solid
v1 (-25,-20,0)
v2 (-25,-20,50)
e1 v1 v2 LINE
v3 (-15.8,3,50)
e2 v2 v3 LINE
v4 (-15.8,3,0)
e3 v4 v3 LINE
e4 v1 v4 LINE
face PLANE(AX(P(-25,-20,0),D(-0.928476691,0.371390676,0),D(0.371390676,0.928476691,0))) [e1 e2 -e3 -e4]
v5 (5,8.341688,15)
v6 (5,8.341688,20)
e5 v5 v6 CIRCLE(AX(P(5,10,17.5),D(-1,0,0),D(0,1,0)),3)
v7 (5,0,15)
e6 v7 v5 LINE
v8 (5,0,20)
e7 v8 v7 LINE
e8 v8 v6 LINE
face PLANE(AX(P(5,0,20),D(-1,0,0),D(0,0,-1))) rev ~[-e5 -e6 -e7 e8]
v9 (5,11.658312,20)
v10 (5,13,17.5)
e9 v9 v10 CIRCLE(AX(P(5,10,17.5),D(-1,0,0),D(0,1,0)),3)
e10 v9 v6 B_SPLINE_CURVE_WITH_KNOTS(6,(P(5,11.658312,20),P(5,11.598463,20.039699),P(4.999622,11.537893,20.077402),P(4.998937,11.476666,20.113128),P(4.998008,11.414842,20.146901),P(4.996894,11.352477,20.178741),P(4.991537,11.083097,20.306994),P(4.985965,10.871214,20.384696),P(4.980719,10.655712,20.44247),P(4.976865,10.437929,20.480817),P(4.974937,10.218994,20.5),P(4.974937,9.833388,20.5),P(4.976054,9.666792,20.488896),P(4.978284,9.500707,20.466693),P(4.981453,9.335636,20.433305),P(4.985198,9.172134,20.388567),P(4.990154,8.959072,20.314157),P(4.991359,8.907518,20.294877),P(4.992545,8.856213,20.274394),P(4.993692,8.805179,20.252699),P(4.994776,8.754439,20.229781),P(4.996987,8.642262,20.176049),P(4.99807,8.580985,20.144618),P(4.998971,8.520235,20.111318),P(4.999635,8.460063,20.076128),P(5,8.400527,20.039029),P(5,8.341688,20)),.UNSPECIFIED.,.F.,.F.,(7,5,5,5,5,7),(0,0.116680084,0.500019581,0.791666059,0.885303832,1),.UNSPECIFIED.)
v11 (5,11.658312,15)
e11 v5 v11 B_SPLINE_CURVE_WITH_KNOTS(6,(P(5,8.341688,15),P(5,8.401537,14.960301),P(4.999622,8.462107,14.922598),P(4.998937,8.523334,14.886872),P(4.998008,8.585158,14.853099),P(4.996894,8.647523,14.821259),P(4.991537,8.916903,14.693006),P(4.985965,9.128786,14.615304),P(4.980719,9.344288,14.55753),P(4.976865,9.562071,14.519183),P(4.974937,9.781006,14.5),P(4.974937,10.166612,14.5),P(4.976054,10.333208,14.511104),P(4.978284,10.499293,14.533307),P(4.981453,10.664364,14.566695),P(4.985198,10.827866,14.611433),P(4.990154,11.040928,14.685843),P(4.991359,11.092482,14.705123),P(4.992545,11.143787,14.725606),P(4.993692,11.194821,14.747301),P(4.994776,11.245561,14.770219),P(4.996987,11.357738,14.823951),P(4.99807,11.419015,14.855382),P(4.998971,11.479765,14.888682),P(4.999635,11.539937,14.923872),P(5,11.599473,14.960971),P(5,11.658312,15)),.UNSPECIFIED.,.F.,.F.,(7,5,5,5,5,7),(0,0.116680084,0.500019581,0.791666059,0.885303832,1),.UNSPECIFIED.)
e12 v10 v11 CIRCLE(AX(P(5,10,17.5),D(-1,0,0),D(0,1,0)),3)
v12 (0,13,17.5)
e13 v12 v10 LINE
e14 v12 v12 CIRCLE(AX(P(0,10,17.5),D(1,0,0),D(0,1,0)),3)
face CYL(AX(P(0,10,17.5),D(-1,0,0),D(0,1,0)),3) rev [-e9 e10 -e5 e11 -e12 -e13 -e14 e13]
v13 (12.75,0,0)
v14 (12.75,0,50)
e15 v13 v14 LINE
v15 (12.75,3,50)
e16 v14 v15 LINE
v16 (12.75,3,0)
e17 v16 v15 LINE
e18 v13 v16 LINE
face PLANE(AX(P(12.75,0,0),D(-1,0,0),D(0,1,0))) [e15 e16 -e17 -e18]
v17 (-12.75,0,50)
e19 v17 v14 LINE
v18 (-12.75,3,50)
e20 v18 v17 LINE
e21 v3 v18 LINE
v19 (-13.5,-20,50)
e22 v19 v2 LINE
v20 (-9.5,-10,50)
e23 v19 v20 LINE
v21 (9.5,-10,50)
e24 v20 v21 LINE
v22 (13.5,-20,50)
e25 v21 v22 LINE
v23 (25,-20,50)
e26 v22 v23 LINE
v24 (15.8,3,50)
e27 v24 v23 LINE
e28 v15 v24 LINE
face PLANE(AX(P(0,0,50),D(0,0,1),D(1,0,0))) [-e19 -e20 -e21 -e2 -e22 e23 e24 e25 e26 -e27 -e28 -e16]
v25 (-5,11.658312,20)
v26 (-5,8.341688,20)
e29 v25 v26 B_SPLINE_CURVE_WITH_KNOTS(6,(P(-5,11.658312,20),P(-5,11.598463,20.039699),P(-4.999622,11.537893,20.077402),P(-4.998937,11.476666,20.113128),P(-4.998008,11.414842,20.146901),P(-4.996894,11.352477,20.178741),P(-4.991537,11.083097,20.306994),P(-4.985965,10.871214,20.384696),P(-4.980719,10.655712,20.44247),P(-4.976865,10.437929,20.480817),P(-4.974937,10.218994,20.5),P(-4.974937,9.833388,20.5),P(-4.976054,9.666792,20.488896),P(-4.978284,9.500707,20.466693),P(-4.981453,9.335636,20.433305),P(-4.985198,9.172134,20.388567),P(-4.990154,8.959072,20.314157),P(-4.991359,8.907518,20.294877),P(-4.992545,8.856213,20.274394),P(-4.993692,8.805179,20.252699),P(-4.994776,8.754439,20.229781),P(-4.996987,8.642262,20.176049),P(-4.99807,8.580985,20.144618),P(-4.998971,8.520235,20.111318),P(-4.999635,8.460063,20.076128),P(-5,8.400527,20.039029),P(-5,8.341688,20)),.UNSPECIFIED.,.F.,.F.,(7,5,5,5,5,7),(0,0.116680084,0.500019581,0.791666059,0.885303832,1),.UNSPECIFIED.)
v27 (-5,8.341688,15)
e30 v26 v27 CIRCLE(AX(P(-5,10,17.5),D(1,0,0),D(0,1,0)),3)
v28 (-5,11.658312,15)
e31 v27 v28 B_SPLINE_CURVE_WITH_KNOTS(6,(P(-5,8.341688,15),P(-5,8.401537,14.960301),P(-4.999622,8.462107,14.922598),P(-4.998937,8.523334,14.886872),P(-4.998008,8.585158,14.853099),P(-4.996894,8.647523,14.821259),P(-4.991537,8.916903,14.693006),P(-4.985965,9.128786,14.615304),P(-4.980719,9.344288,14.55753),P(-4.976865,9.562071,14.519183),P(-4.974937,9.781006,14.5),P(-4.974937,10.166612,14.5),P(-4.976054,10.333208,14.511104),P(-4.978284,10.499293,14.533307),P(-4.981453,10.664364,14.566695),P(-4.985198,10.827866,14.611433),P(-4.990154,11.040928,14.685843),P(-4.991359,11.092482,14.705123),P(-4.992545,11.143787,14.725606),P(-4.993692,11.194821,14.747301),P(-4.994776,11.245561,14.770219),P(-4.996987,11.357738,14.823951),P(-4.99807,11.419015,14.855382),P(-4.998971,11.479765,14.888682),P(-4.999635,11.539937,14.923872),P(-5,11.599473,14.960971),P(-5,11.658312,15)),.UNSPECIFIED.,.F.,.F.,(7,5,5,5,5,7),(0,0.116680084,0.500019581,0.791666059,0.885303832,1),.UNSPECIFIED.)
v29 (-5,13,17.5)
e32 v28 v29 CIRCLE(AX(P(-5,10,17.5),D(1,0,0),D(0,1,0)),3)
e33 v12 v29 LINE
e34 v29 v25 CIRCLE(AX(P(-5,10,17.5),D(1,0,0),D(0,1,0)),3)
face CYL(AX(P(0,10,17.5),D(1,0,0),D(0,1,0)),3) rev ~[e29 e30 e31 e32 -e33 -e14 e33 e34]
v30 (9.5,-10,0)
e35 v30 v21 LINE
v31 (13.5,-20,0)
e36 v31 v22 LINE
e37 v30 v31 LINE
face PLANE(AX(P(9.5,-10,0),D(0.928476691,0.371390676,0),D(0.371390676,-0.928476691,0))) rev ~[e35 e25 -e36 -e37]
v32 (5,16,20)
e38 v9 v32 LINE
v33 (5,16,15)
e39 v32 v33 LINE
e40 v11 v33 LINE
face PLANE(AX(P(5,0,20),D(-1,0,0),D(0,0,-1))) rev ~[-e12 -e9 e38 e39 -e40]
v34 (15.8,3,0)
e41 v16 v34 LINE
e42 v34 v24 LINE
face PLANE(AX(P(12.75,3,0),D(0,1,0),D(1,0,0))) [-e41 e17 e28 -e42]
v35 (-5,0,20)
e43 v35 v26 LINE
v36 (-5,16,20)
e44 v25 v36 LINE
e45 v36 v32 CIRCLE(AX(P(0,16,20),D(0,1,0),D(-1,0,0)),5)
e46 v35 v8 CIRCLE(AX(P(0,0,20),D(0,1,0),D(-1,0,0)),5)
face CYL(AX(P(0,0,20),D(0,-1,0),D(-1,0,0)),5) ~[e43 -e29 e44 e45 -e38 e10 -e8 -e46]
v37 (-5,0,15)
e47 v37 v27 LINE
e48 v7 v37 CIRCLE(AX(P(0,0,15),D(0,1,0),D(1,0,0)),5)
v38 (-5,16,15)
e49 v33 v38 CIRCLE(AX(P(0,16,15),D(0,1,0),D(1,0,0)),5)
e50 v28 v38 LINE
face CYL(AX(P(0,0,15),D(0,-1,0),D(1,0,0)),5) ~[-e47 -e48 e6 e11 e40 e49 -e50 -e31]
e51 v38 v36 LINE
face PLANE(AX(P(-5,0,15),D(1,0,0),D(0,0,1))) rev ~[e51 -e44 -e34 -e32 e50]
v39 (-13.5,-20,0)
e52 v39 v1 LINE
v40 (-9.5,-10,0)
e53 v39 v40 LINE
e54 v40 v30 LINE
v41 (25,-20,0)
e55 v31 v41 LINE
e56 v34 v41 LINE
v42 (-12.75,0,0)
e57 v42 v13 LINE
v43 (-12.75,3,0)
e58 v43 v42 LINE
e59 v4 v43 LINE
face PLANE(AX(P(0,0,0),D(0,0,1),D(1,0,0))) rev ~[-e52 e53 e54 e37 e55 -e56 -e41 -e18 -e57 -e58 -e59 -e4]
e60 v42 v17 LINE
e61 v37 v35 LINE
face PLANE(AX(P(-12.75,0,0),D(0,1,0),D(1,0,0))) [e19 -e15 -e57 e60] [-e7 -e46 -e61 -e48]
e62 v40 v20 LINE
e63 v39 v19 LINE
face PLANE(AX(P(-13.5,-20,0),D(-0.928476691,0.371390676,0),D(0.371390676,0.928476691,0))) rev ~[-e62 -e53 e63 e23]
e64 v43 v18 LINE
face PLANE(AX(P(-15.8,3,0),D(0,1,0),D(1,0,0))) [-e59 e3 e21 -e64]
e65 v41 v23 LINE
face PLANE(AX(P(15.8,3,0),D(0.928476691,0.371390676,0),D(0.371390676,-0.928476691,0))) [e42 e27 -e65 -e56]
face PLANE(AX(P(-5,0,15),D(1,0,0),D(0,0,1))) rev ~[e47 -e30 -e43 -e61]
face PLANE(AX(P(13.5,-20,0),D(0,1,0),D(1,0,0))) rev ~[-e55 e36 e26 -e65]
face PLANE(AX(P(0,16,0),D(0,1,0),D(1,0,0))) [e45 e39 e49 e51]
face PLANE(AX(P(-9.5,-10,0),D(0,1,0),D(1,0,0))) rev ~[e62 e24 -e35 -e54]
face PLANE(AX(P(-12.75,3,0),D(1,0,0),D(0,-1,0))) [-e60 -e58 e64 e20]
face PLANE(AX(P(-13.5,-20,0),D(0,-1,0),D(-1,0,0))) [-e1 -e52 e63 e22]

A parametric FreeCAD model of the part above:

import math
import FreeCAD as App
import Part
import Sketcher

doc = App.newDocument("Part")
params = doc.addObject("Spreadsheet::Sheet", "Params")
for row, (alias, value) in enumerate([
    ("sketch1_width", "19 mm"),
    ("sketch1_height", "3 mm"),
    ("sketch1_width2", "25.5 mm"),
    ("sketch1_width3", "11.5 mm"),
    ("pad1_length", "50 mm"),
    ("sketch2_radius", "5 mm"),
    ("sketch2_height", "5 mm"),
    ("pad2_length", "16 mm"),
    ("sketch3_diameter", "6 mm"),
], start=1):
    params.set(f"A{row}", alias)
    params.set(f"B{row}", "=" + value)
    params.setAlias(f"B{row}", alias)

body = doc.addObject("PartDesign::Body", "Body")

# Sketch on XY plane
sketch1 = body.newObject("Sketcher::SketchObject", "Sketch")
sketch1.AttachmentSupport = (doc.getObject("XY_Plane"), [""])
sketch1.MapMode = "FlatFace"
sketch1.addGeometry([
    Part.LineSegment(App.Vector(25, -20, 0), App.Vector(15.8, 3, 0)),  # 0
    Part.LineSegment(App.Vector(15.8, 3, 0), App.Vector(12.8, 3, 0)),  # 1
    Part.LineSegment(App.Vector(12.8, 3, 0), App.Vector(12.8, 0, 0)),  # 2
    Part.LineSegment(App.Vector(12.8, 0, 0), App.Vector(-12.8, 0, 0)),  # 3
    Part.LineSegment(App.Vector(-12.8, 0, 0), App.Vector(-12.8, 3, 0)),  # 4
    Part.LineSegment(App.Vector(-12.8, 3, 0), App.Vector(-15.8, 3, 0)),  # 5
    Part.LineSegment(App.Vector(-15.8, 3, 0), App.Vector(-25, -20, 0)),  # 6
    Part.LineSegment(App.Vector(-25, -20, 0), App.Vector(-13.5, -20, 0)),  # 7
    Part.LineSegment(App.Vector(-13.5, -20, 0), App.Vector(-9.5, -10, 0)),  # 8
    Part.LineSegment(App.Vector(-9.5, -10, 0), App.Vector(9.5, -10, 0)),  # 9
    Part.LineSegment(App.Vector(9.5, -10, 0), App.Vector(13.5, -20, 0)),  # 10
    Part.LineSegment(App.Vector(13.5, -20, 0), App.Vector(25, -20, 0)),  # 11
], False)
sketch1.addConstraint([
    Sketcher.Constraint("Coincident", 0, 2, 1, 1),
    Sketcher.Constraint("Coincident", 1, 2, 2, 1),
    Sketcher.Constraint("Coincident", 2, 2, 3, 1),
    Sketcher.Constraint("Coincident", 3, 2, 4, 1),
    Sketcher.Constraint("Coincident", 4, 2, 5, 1),
    Sketcher.Constraint("Coincident", 5, 2, 6, 1),
    Sketcher.Constraint("Coincident", 6, 2, 7, 1),
    Sketcher.Constraint("Coincident", 7, 2, 8, 1),
    Sketcher.Constraint("Coincident", 8, 2, 9, 1),
    Sketcher.Constraint("Coincident", 9, 2, 10, 1),
    Sketcher.Constraint("Coincident", 10, 2, 11, 1),
    Sketcher.Constraint("Coincident", 11, 2, 0, 1),
    Sketcher.Constraint("Horizontal", 1),
    Sketcher.Constraint("Vertical", 2),
    Sketcher.Constraint("Horizontal", 3),
    Sketcher.Constraint("Vertical", 4),
    Sketcher.Constraint("Horizontal", 5),
    Sketcher.Constraint("Horizontal", 7),
    Sketcher.Constraint("Horizontal", 9),
    Sketcher.Constraint("Horizontal", 11),
    Sketcher.Constraint("Symmetric", 2, 2, 3, 2, -1, 1),
    Sketcher.Constraint("Symmetric", 0, 2, 5, 2, -2),
    Sketcher.Constraint("Symmetric", 7, 2, 10, 2, -2),
    Sketcher.Constraint("Parallel", 6, 8),
    Sketcher.Constraint("Parallel", 0, 10),
    Sketcher.Constraint("Equal", 7, 11),
    Sketcher.Constraint("DistanceX", 9, 1, 9, 2, 19.0),
    Sketcher.Constraint("DistanceY", 2, 2, 2, 1, 3.0),
    Sketcher.Constraint("DistanceX", 3, 2, 3, 1, 25.5),
    Sketcher.Constraint("DistanceX", 7, 1, 7, 2, 11.5),
    Sketcher.Constraint("DistanceX", 6, 2, -1, 1, 25.0),
    Sketcher.Constraint("DistanceY", 6, 2, -1, 1, 20.0),
    Sketcher.Constraint("DistanceY", 8, 2, -1, 1, 10.0),
])
sketch1.setExpression("Constraints[26]", "Params.sketch1_width")
sketch1.setExpression("Constraints[27]", "Params.sketch1_height")
sketch1.setExpression("Constraints[28]", "Params.sketch1_width2")
sketch1.setExpression("Constraints[29]", "Params.sketch1_width3")
pad1 = body.newObject("PartDesign::Pad", "Pad")
pad1.Profile = sketch1
pad1.setExpression("Length", "Params.pad1_length")

# Sketch on XZ plane
sketch2 = body.newObject("Sketcher::SketchObject", "Sketch001")
sketch2.AttachmentSupport = (doc.getObject("XZ_Plane"), [""])
sketch2.MapMode = "FlatFace"
sketch2.addGeometry([
    Part.ArcOfCircle(Part.Circle(App.Vector(0, 20, 0), App.Vector(0, 0, 1), 5), math.radians(0), math.radians(180)),
    Part.LineSegment(App.Vector(5, 20, 0), App.Vector(5, 15, 0)),
    Part.ArcOfCircle(Part.Circle(App.Vector(0, 15, 0), App.Vector(0, 0, 1), 5), math.radians(180), math.radians(360)),
    Part.LineSegment(App.Vector(-5, 15, 0), App.Vector(-5, 20, 0)),
], False)
sketch2.addConstraint([
    Sketcher.Constraint("Tangent", 0, 1, 1, 1),
    Sketcher.Constraint("Tangent", 1, 2, 2, 2),
    Sketcher.Constraint("Tangent", 2, 1, 3, 1),
    Sketcher.Constraint("Tangent", 3, 2, 0, 2),
    Sketcher.Constraint("Vertical", 1),
    Sketcher.Constraint("Vertical", 3),
    Sketcher.Constraint("PointOnObject", 0, 3, -2),
    Sketcher.Constraint("Radius", 0, 5.0),
    Sketcher.Constraint("DistanceY", 1, 2, 1, 1, 5.0),
    Sketcher.Constraint("DistanceY", -1, 1, 0, 3, 20.0),
])
sketch2.setExpression("Constraints[7]", "Params.sketch2_radius")
sketch2.setExpression("Constraints[8]", "Params.sketch2_height")
pad2 = body.newObject("PartDesign::Pad", "Pad001")
pad2.Profile = sketch2
pad2.setExpression("Length", "Params.pad2_length")
pad2.Reversed = True

# Sketch on YZ plane
sketch3 = body.newObject("Sketcher::SketchObject", "Sketch002")
sketch3.AttachmentSupport = (doc.getObject("YZ_Plane"), [""])
sketch3.MapMode = "FlatFace"
sketch3.addGeometry(Part.Circle(App.Vector(10, 17.5, 0), App.Vector(0, 0, 1), 3), False)
sketch3.addConstraint([
    Sketcher.Constraint("Diameter", 0, 6.0),
    Sketcher.Constraint("DistanceX", -1, 1, 0, 3, 10.0),
    Sketcher.Constraint("DistanceY", -1, 1, 0, 3, 17.5),
])
sketch3.setExpression("Constraints[0]", "Params.sketch3_diameter")
pocket1 = body.newObject("PartDesign::Pocket", "Pocket")
pocket1.Profile = sketch3
pocket1.Type = "ThroughAll"
pocket1.Midplane = True

doc.recompute()
